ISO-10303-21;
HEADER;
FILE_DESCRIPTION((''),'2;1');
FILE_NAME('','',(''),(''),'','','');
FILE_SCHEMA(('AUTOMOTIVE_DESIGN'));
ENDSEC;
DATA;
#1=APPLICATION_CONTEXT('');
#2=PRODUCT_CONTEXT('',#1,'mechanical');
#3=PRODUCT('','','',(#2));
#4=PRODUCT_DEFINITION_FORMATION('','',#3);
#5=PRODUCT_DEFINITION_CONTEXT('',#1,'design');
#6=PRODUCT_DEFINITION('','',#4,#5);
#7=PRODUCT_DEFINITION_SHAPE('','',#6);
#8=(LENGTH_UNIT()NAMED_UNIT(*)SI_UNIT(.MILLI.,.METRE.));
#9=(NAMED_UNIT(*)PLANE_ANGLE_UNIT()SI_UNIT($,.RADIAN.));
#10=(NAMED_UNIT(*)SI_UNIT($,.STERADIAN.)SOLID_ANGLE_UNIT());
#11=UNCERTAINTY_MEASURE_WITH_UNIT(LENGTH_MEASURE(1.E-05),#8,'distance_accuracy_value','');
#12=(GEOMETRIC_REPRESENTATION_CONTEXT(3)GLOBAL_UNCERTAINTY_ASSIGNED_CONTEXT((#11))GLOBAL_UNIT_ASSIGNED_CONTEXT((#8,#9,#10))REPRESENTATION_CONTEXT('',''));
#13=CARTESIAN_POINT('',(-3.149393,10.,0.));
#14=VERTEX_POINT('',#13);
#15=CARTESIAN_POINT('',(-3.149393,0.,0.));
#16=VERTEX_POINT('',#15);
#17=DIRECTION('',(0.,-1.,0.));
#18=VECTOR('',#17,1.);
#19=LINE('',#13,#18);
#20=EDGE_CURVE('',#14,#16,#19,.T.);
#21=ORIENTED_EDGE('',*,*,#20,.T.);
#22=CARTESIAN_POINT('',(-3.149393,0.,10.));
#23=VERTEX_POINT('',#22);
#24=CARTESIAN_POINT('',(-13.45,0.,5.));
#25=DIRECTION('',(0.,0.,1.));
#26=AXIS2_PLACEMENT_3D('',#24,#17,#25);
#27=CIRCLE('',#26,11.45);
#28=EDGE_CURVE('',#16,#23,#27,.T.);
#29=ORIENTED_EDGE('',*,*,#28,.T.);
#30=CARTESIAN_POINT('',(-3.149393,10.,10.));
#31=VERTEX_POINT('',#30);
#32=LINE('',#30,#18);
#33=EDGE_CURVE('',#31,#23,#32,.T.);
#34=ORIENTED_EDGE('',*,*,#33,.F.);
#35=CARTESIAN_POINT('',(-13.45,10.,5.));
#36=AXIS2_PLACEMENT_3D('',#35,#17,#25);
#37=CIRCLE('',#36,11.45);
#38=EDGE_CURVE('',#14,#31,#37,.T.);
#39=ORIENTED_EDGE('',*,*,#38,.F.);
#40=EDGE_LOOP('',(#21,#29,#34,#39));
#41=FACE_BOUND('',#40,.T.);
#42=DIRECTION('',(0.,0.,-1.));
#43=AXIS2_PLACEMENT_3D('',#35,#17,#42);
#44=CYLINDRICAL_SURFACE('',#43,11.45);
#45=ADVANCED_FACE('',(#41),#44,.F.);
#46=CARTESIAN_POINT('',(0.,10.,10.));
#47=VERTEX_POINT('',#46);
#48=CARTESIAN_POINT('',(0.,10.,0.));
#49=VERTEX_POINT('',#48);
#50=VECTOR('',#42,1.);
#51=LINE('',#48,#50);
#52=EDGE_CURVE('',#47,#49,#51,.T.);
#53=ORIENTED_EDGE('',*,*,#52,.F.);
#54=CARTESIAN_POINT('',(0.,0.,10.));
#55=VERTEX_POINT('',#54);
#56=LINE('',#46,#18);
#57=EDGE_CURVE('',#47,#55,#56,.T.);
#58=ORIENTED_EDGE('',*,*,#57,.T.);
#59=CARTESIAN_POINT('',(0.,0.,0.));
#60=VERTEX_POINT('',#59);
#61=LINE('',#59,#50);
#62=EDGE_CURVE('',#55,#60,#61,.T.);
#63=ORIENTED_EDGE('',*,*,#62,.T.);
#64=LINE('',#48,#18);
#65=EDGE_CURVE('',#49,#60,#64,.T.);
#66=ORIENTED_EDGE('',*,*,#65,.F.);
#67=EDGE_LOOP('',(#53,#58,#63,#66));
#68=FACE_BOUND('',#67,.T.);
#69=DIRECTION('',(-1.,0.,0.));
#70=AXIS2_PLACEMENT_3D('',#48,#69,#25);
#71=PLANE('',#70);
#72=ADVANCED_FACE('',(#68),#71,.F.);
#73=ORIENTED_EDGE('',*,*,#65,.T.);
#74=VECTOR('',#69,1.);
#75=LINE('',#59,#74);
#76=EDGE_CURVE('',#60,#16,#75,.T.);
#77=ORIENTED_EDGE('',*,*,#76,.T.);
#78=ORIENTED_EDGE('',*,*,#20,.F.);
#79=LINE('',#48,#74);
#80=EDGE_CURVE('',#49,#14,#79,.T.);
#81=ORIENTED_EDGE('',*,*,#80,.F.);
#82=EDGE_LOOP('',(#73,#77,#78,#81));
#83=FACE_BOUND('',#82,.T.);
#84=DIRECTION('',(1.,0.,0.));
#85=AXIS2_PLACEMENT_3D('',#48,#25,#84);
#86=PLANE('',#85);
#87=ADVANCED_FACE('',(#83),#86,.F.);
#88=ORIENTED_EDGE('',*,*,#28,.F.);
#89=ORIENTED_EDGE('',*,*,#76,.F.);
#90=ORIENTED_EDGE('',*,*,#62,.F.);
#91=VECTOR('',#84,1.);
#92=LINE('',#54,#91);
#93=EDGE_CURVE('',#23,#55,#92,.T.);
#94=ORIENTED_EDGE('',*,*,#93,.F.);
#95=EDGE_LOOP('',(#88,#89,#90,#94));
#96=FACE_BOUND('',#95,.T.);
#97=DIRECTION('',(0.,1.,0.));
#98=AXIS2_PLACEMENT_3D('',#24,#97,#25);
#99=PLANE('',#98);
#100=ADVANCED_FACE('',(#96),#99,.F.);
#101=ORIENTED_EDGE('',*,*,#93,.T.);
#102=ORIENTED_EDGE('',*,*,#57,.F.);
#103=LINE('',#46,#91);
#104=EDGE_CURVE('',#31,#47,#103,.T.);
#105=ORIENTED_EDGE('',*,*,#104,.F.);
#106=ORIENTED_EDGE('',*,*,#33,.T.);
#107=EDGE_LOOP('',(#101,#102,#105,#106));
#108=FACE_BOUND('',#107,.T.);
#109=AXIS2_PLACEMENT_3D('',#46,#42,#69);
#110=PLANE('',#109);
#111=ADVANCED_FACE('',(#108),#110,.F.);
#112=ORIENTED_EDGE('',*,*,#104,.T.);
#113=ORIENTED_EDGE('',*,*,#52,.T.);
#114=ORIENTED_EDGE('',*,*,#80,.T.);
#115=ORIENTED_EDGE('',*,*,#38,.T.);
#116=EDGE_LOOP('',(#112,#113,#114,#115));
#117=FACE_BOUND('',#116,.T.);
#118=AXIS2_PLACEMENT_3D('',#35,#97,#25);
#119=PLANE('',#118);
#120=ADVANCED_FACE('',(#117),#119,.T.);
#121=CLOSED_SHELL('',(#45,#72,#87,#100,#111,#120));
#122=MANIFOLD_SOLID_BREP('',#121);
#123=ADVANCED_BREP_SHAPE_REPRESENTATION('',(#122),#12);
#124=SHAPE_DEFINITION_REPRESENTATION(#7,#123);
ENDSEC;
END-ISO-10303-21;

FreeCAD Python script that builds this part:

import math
import FreeCAD as App
import Part
import Sketcher
Q = App.Units.Quantity

doc = App.newDocument("Part")
body = doc.addObject("PartDesign::Body", "Body")

sketch1 = body.newObject("Sketcher::SketchObject", "Sketch")
sketch1.AttachmentSupport = (doc.getObject("XZ_Plane"), [""])
sketch1.MapMode = "FlatFace"
sketch1.addGeometry(Part.LineSegment(App.Vector(0, 10, 0), App.Vector(0, 0, 0)), False)
sketch1.addGeometry(Part.LineSegment(App.Vector(0, 0, 0), App.Vector(-3.1, 0, 0)), False)
sketch1.addGeometry(Part.ArcOfCircle(Part.Circle(App.Vector(-13.4, 5, 0), App.Vector(0, 0, 1), 11.4), math.radians(-26), math.radians(26)), False)
sketch1.addGeometry(Part.LineSegment(App.Vector(-3.1, 10, 0), App.Vector(0, 10, 0)), False)
sketch1.addConstraint(Sketcher.Constraint("Coincident", 0, 2, 1, 1))
sketch1.addConstraint(Sketcher.Constraint("Coincident", 1, 2, 2, 1))
sketch1.addConstraint(Sketcher.Constraint("Coincident", 2, 2, 3, 1))
sketch1.addConstraint(Sketcher.Constraint("Coincident", 3, 2, 0, 1))
sketch1.addConstraint(Sketcher.Constraint("Vertical", 0))
sketch1.addConstraint(Sketcher.Constraint("Horizontal", 1))
sketch1.addConstraint(Sketcher.Constraint("Horizontal", 3))
sketch1.addConstraint(Sketcher.Constraint("Coincident", 0, 2, -1, 1))
sketch1.addConstraint(Sketcher.Constraint("Vertical", 1, 2, 2, 2))
sketch1.addConstraint(Sketcher.Constraint("DistanceY", 0, 2, 0, 1, Q("10 mm")))
sketch1.addConstraint(Sketcher.Constraint("Radius", 2, Q("11.45 mm")))
sketch1.addConstraint(Sketcher.Constraint("DistanceX", 2, 3, -1, 1, Q("13.45 mm")))
pad1 = body.newObject("PartDesign::Pad", "Pad")
pad1.Profile = sketch1
pad1.Length = 10
pad1.Reversed = True

doc.recompute()
